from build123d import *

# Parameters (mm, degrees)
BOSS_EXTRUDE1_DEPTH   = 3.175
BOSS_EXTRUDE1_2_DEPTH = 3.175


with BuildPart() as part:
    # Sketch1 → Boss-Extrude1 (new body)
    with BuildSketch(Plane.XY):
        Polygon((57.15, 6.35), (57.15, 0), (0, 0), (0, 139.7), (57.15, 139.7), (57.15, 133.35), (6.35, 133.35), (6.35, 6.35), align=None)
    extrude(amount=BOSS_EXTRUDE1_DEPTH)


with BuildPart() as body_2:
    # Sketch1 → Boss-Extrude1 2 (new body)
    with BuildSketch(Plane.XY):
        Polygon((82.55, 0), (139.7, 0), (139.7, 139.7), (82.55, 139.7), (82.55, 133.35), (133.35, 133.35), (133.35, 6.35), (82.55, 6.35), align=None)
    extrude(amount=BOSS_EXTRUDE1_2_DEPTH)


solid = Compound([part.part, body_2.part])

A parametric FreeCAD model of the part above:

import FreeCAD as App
import Part
import Sketcher
Q = App.Units.Quantity


def add_polygon(sketch, points):
    """Adds a closed chain of lines whose ends are joined by coincident constraints."""
    first, n = sketch.GeometryCount, len(points)
    for a, b in zip(points, points[1:] + points[:1]):
        sketch.addGeometry(Part.LineSegment(App.Vector(*a, 0), App.Vector(*b, 0)), False)
    for i in range(n):
        sketch.addConstraint(Sketcher.Constraint("Coincident", first + i, 2, first + (i + 1) % n, 1))

doc = App.newDocument("Part")
params = doc.addObject("Spreadsheet::Sheet", "Params")
for row, (alias, value) in enumerate([
    ("sketch1_width", "2 in"),
    ("sketch1_height", "5 in"),
    ("sketch1_height2", "5.5 in"),
    ("sketch1_width2", "2.25 in"),
    ("pad1_length", "0.125 in"),
    ("sketch2_width", "2 in"),
    ("sketch2_height", "5 in"),
    ("sketch2_height2", "5.5 in"),
    ("sketch2_width2", "2.25 in"),
    ("pad2_length", "0.125 in"),
], start=1):
    params.set(f"A{row}", alias)
    params.set(f"B{row}", "=" + value)
    params.setAlias(f"B{row}", alias)

body = doc.addObject("PartDesign::Body", "Body")

# Sketch on XY plane
sketch1 = doc.addObject("Sketcher::SketchObject", "Sketch")
body.addObject(sketch1)
sketch1.AttachmentSupport = (doc.XY_Plane, [""])
sketch1.MapMode = "FlatFace"
add_polygon(sketch1, [(57, 0), (57, 6), (6, 6), (6, 133), (57, 133), (57, 140), (0, 140), (0, 0)])  # lines 0-7
sketch1.addConstraint(Sketcher.Constraint("Vertical", 0))
sketch1.addConstraint(Sketcher.Constraint("Horizontal", 1))
sketch1.addConstraint(Sketcher.Constraint("Vertical", 2))
sketch1.addConstraint(Sketcher.Constraint("Horizontal", 3))
sketch1.addConstraint(Sketcher.Constraint("Vertical", 4))
sketch1.addConstraint(Sketcher.Constraint("Horizontal", 5))
sketch1.addConstraint(Sketcher.Constraint("Vertical", 6))
sketch1.addConstraint(Sketcher.Constraint("Horizontal", 7))
sketch1.addConstraint(Sketcher.Constraint("Coincident", 6, 2, -1, 1))
sketch1.addConstraint(Sketcher.Constraint("Vertical", 0, 2, 3, 2))
sketch1.addConstraint(Sketcher.Constraint("Equal", 0, 4))
sketch1.addConstraint(Sketcher.Constraint("DistanceX", 1, 2, 1, 1, Q("2 in")))
sketch1.addConstraint(Sketcher.Constraint("DistanceY", 2, 1, 2, 2, Q("5 in")))
sketch1.addConstraint(Sketcher.Constraint("DistanceY", 6, 2, 6, 1, Q("5.5 in")))
sketch1.addConstraint(Sketcher.Constraint("DistanceX", 5, 2, 5, 1, Q("2.25 in")))
sketch1.setExpression("Constraints[19]", "Params.sketch1_width")
sketch1.setExpression("Constraints[20]", "Params.sketch1_height")
sketch1.setExpression("Constraints[21]", "Params.sketch1_height2")
sketch1.setExpression("Constraints[22]", "Params.sketch1_width2")
pad1 = doc.addObject("PartDesign::Pad", "Pad")
body.addObject(pad1)
pad1.Profile = sketch1
pad1.setExpression("Length", "Params.pad1_length")
body2 = doc.addObject("PartDesign::Body", "Body001")

# Sketch on XY plane
sketch2 = doc.addObject("Sketcher::SketchObject", "Sketch001")
body2.addObject(sketch2)
sketch2.AttachmentSupport = (doc.getObject("XY_Plane001"), [""])
sketch2.MapMode = "FlatFace"
add_polygon(sketch2, [(83, 0), (140, 0), (140, 140), (83, 140), (83, 133), (133, 133), (133, 6), (83, 6)])  # lines 0-7
sketch2.addConstraint(Sketcher.Constraint("Horizontal", 0))
sketch2.addConstraint(Sketcher.Constraint("Vertical", 1))
sketch2.addConstraint(Sketcher.Constraint("Horizontal", 2))
sketch2.addConstraint(Sketcher.Constraint("Vertical", 3))
sketch2.addConstraint(Sketcher.Constraint("Horizontal", 4))
sketch2.addConstraint(Sketcher.Constraint("Vertical", 5))
sketch2.addConstraint(Sketcher.Constraint("Horizontal", 6))
sketch2.addConstraint(Sketcher.Constraint("Vertical", 7))
sketch2.addConstraint(Sketcher.Constraint("PointOnObject", 0, 2, -1))
sketch2.addConstraint(Sketcher.Constraint("Vertical", 3, 2, 6, 2))
sketch2.addConstraint(Sketcher.Constraint("Equal", 3, 7))
sketch2.addConstraint(Sketcher.Constraint("DistanceX", 4, 1, 4, 2, Q("2 in")))
sketch2.addConstraint(Sketcher.Constraint("DistanceY", 5, 2, 5, 1, Q("5 in")))
sketch2.addConstraint(Sketcher.Constraint("DistanceY", 1, 1, 1, 2, Q("5.5 in")))
sketch2.addConstraint(Sketcher.Constraint("DistanceX", 0, 1, 0, 2, Q("2.25 in")))
sketch2.addConstraint(Sketcher.Constraint("DistanceX", -1, 1, 0, 2, Q("5.5 in")))
sketch2.setExpression("Constraints[19]", "Params.sketch2_width")
sketch2.setExpression("Constraints[20]", "Params.sketch2_height")
sketch2.setExpression("Constraints[21]", "Params.sketch2_height2")
sketch2.setExpression("Constraints[22]", "Params.sketch2_width2")
pad2 = doc.addObject("PartDesign::Pad", "Pad001")
body2.addObject(pad2)
pad2.Profile = sketch2
pad2.setExpression("Length", "Params.pad2_length")

doc.recompute()
